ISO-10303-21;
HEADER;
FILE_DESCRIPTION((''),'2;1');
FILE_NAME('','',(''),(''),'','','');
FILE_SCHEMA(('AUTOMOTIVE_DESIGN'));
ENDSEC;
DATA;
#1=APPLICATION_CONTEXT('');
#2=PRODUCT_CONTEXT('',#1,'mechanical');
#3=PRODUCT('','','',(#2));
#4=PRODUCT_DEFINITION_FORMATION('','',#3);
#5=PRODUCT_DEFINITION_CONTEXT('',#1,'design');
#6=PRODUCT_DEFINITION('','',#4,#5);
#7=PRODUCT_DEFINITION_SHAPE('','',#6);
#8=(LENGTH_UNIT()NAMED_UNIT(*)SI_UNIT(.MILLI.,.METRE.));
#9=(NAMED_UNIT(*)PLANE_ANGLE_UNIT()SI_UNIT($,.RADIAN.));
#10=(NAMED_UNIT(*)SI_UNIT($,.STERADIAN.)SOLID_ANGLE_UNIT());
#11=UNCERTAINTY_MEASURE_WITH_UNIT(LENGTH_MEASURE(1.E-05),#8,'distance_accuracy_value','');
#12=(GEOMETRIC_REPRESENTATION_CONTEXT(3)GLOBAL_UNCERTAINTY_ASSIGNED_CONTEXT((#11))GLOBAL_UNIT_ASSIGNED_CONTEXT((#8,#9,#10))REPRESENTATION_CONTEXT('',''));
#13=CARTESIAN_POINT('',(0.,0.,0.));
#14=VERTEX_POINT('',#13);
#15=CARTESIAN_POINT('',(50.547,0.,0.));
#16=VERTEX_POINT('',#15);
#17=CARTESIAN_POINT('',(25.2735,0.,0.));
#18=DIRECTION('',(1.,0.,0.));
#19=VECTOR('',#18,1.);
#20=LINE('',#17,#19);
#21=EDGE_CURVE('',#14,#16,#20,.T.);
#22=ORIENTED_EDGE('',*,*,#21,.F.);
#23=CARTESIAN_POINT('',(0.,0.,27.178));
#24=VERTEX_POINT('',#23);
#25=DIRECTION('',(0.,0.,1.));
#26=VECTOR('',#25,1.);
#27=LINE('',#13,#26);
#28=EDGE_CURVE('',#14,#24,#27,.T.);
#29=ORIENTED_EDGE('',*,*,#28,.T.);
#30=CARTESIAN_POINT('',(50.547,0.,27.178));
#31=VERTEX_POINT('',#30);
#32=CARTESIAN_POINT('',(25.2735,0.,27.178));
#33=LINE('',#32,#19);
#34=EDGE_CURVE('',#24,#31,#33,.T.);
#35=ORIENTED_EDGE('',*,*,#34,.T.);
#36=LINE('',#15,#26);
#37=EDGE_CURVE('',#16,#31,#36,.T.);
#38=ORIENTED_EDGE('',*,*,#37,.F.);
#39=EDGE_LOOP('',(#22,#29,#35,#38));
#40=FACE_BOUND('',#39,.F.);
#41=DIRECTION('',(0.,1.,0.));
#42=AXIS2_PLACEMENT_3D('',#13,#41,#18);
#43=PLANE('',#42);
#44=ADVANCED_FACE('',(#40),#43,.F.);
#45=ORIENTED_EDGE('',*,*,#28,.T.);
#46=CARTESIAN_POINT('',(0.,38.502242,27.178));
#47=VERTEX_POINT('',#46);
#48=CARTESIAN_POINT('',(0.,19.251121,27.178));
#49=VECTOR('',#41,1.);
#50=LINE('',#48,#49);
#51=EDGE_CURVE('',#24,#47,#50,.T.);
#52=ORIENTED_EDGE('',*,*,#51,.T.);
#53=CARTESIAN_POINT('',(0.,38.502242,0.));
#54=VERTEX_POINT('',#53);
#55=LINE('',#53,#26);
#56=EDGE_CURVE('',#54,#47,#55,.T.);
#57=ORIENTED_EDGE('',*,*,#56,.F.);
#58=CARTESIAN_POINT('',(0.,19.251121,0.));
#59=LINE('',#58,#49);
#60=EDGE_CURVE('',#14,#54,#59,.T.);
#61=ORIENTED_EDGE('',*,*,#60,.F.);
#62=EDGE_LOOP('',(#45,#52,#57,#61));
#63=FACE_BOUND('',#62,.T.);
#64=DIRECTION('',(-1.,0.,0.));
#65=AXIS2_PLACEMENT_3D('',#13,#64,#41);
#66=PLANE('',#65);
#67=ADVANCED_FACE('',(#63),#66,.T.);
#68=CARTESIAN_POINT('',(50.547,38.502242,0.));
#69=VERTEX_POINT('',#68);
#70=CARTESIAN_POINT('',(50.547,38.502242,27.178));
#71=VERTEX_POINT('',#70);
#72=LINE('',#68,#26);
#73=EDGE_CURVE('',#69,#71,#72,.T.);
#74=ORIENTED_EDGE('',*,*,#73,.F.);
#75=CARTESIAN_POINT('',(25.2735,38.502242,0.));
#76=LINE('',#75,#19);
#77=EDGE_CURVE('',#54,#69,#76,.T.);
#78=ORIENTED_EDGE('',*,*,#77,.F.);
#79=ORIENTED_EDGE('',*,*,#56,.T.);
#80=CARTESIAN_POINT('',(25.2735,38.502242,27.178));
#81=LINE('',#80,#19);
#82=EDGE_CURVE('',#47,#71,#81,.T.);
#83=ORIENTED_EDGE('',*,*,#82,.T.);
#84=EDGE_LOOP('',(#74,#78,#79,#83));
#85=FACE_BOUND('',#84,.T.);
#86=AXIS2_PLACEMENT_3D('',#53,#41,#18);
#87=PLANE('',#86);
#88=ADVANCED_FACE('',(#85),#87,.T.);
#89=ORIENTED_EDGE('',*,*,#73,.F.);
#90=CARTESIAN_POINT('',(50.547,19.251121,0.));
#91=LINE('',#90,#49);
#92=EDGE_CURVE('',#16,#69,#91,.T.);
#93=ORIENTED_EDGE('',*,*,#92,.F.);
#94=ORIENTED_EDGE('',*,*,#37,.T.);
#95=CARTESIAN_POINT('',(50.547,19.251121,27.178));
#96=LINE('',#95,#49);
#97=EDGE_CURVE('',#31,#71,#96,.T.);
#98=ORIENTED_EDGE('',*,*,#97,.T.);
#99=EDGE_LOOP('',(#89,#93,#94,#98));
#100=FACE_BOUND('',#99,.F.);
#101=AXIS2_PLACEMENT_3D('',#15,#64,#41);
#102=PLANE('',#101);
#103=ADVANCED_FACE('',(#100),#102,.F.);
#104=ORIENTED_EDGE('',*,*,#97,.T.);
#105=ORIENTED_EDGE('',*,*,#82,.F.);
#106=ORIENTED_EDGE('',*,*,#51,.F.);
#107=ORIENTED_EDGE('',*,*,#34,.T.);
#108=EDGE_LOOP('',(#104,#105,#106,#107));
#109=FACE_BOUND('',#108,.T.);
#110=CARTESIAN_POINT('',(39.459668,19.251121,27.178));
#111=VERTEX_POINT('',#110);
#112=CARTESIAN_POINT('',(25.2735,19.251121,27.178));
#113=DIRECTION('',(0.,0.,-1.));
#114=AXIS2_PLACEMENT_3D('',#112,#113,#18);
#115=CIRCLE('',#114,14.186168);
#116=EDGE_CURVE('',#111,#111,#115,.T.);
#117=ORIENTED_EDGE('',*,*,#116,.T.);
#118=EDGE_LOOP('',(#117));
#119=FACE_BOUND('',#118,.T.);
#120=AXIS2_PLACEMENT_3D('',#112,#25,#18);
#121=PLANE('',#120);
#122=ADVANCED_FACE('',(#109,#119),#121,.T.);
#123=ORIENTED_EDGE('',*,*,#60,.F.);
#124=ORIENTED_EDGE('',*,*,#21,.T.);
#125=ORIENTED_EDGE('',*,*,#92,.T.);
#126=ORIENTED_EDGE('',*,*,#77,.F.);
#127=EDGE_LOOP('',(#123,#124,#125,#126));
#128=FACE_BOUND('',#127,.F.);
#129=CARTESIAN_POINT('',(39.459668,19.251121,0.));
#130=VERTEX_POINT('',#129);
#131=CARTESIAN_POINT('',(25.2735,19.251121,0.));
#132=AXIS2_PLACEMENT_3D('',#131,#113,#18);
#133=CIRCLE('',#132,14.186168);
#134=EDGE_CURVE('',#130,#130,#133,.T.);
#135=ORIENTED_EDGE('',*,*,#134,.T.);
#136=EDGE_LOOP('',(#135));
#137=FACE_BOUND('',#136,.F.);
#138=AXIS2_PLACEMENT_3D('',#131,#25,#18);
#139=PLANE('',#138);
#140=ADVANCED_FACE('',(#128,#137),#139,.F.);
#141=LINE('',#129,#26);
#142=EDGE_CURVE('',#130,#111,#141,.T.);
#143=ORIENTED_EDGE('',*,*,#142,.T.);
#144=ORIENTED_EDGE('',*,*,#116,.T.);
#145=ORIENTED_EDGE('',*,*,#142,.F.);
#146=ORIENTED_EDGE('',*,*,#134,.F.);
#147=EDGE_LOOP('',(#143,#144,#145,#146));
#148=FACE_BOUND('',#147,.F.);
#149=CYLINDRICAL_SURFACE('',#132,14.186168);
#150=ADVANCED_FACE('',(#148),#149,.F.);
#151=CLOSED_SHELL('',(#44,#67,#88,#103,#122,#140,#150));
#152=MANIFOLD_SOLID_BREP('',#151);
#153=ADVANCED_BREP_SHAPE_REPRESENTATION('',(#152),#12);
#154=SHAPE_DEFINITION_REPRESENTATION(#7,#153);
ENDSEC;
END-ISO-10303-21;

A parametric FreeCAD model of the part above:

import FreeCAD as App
import Part
import Sketcher

V = App.Vector
Q = App.Units.Quantity

doc = App.newDocument("Part")
body = doc.addObject("PartDesign::Body", "Body")

sketch1 = body.newObject("Sketcher::SketchObject", "Sketch")
sketch1.AttachmentSupport = (doc.getObject("XY_Plane"), [""])
sketch1.MapMode = "FlatFace"
sketch1.addGeometry(Part.LineSegment(V(0, 39, 0), V(0, 0, 0)), False)
sketch1.addGeometry(Part.LineSegment(V(0, 0, 0), V(51, 0, 0)), False)
sketch1.addGeometry(Part.LineSegment(V(51, 0, 0), V(51, 39, 0)), False)
sketch1.addGeometry(Part.LineSegment(V(51, 39, 0), V(0, 39, 0)), False)
sketch1.addConstraint(Sketcher.Constraint("Coincident", 0, 2, 1, 1))
sketch1.addConstraint(Sketcher.Constraint("Coincident", 1, 2, 2, 1))
sketch1.addConstraint(Sketcher.Constraint("Coincident", 2, 2, 3, 1))
sketch1.addConstraint(Sketcher.Constraint("Coincident", 3, 2, 0, 1))
sketch1.addConstraint(Sketcher.Constraint("Vertical", 0))
sketch1.addConstraint(Sketcher.Constraint("Horizontal", 1))
sketch1.addConstraint(Sketcher.Constraint("Vertical", 2))
sketch1.addConstraint(Sketcher.Constraint("Horizontal", 3))
sketch1.addConstraint(Sketcher.Constraint("Coincident", 0, 2, -1, 1))
sketch1.addConstraint(Sketcher.Constraint("DistanceX", 1, 1, 1, 2, 50.547))
sketch1.addConstraint(Sketcher.Constraint("DistanceY", 0, 2, 0, 1, 38.502242))
pad1 = body.newObject("PartDesign::Pad", "Pad")
pad1.Profile = sketch1
pad1.Length = Q("1.07 in")

sketch2 = body.newObject("Sketcher::SketchObject", "Sketch001")
sketch2.AttachmentSupport = (doc.getObject("XY_Plane"), [""])
sketch2.MapMode = "FlatFace"
sketch2.addGeometry(Part.Circle(V(25, 19, 0), V(0, 0, 1), 14), False)
sketch2.addConstraint(Sketcher.Constraint("Diameter", 0, 28.372336))
sketch2.addConstraint(Sketcher.Constraint("DistanceX", -1, 1, 0, 3, 25.2735))
sketch2.addConstraint(Sketcher.Constraint("DistanceY", -1, 1, 0, 3, 19.251121))
pocket1 = body.newObject("PartDesign::Pocket", "Pocket")
pocket1.Profile = sketch2
pocket1.Type = "ThroughAll"
pocket1.Reversed = True

doc.recompute()
